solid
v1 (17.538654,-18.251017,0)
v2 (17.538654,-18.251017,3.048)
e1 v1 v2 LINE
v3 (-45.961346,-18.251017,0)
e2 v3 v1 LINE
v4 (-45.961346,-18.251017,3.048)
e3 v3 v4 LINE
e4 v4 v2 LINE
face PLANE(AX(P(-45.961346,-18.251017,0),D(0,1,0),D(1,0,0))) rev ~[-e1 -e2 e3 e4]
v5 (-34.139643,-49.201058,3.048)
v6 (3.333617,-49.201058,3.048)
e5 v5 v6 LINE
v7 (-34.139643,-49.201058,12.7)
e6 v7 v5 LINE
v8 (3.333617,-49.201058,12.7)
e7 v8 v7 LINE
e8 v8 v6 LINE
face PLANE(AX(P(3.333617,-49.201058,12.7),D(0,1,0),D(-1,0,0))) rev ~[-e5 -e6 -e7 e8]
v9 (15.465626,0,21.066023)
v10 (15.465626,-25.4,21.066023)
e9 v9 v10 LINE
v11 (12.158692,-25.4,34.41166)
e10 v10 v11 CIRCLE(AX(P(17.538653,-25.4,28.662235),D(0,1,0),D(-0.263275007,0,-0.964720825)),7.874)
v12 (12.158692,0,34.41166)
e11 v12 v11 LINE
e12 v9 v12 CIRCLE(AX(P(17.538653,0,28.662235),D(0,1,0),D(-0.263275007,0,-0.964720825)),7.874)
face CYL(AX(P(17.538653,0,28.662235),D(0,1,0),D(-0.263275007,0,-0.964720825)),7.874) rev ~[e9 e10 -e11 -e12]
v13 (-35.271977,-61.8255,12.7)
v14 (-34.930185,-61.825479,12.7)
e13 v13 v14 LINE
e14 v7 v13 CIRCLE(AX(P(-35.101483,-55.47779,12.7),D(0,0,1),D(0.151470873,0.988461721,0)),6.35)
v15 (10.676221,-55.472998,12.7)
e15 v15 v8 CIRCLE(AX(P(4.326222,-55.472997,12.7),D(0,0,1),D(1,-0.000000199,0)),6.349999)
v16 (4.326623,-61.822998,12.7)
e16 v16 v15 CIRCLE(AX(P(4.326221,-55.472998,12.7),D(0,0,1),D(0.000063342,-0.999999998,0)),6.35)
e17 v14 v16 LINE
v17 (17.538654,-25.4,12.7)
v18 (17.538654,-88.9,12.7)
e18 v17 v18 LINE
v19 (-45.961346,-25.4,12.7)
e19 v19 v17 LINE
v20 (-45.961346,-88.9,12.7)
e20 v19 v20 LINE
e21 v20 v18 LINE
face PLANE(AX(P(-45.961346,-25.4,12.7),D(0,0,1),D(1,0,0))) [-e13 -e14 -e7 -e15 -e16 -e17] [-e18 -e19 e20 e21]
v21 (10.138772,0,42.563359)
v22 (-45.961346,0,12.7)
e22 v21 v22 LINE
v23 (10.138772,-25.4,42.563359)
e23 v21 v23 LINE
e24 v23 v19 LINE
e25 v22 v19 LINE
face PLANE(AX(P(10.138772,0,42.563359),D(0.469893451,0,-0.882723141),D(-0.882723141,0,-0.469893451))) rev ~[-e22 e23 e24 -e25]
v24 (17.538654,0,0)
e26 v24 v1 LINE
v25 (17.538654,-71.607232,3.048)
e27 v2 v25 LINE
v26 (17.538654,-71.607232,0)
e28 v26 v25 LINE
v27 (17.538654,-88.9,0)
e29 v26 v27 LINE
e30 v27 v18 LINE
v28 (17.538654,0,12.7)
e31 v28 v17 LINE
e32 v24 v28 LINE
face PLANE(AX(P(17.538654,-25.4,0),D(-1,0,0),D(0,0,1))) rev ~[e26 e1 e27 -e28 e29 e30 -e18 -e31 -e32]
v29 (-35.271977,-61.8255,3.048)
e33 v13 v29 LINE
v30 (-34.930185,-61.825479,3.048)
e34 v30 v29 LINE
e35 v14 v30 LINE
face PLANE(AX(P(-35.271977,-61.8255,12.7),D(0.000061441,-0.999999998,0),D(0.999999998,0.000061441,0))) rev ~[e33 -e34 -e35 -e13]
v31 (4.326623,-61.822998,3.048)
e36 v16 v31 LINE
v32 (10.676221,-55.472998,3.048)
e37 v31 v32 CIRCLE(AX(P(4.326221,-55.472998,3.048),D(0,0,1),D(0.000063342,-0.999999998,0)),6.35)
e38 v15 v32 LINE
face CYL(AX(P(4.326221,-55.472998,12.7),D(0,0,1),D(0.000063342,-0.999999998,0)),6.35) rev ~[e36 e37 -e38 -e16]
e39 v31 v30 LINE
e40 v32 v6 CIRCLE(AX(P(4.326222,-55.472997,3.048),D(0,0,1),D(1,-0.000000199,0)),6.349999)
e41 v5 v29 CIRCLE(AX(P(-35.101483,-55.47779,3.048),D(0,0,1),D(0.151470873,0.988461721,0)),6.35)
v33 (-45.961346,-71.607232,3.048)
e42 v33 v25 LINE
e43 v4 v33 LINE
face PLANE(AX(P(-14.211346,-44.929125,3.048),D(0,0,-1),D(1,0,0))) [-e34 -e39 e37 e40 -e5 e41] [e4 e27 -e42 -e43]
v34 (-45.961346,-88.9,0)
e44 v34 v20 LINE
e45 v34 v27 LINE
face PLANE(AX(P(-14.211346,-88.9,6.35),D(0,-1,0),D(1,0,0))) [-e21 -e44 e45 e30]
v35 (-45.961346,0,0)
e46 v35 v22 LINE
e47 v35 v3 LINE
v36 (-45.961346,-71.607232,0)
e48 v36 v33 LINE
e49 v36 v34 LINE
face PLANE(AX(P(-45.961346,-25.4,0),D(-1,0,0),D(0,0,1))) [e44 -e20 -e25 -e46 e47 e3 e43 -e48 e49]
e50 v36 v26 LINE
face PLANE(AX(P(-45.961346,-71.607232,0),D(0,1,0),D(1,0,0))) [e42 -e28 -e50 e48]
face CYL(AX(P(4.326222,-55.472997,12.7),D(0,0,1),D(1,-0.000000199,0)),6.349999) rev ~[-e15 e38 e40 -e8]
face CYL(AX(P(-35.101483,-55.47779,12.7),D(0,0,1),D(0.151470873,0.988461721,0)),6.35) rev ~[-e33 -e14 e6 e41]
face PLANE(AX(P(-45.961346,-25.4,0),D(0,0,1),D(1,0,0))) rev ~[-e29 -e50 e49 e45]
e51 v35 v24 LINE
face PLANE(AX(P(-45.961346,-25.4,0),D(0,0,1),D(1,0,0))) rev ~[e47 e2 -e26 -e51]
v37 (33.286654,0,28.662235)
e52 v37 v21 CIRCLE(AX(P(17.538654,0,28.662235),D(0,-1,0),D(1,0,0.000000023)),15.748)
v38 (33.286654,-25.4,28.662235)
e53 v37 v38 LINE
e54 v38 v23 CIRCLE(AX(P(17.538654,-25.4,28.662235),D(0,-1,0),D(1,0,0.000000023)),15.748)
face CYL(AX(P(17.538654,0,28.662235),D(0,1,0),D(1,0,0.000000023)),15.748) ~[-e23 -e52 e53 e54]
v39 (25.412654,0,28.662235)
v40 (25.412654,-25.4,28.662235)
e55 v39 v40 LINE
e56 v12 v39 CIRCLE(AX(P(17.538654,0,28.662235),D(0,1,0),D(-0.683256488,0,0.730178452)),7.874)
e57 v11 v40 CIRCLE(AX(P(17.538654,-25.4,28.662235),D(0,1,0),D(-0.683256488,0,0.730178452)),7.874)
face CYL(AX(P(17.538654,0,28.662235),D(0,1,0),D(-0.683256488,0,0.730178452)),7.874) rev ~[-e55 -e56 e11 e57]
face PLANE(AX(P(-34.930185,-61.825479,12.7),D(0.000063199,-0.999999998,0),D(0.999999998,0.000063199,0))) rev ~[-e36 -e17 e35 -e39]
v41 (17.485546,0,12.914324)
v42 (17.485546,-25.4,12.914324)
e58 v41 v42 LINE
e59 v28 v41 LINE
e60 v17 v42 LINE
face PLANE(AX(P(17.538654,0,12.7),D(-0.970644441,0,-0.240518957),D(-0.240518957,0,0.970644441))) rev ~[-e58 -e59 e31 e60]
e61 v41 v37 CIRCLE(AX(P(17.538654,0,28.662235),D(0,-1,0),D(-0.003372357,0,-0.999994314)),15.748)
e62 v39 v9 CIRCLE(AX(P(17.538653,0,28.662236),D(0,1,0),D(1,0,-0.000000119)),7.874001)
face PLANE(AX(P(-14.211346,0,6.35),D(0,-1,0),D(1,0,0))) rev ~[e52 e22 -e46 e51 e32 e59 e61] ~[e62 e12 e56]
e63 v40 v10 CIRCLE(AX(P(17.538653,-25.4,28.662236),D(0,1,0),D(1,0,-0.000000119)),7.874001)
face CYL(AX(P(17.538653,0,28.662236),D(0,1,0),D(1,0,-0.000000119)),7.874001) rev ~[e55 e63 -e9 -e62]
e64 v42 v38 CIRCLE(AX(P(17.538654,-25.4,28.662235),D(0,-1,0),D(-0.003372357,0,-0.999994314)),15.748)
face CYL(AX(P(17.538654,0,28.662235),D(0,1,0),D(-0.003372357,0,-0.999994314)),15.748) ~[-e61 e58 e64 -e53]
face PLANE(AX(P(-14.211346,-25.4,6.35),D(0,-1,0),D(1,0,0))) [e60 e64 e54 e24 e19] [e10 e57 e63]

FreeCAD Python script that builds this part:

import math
import FreeCAD as App
import Part
import Sketcher

V = App.Vector
Q = App.Units.Quantity

doc = App.newDocument("Part")
body = doc.addObject("PartDesign::Body", "Body")

# Sketch on XZ plane
sketch1 = doc.addObject("Sketcher::SketchObject", "Sketch")
body.addObject(sketch1)
sketch1.AttachmentSupport = (doc.XZ_Plane, [""])
sketch1.MapMode = "FlatFace"
sketch1.addGeometry(Part.LineSegment(V(-45.96, 12.7, 0), V(-45.96, 0, 0)), False)
sketch1.addGeometry(Part.LineSegment(V(-45.96, 0, 0), V(17.54, 0, 0)), False)
sketch1.addGeometry(Part.LineSegment(V(17.54, 0, 0), V(17.54, 12.7, 0)), False)
sketch1.addGeometry(Part.LineSegment(V(17.54, 12.7, 0), V(17.49, 12.91, 0)), False)
sketch1.addGeometry(Part.ArcOfCircle(Part.Circle(V(17.54, 28.66, 0), V(0, 0, 1), 15.75), math.radians(-90), math.radians(0)), False)
sketch1.addGeometry(Part.ArcOfCircle(Part.Circle(V(17.54, 28.66, 0), V(0, 0, 1), 15.75), math.radians(0), math.radians(118)), False)
sketch1.addGeometry(Part.LineSegment(V(10.14, 42.56, 0), V(-45.96, 12.7, 0)), False)
sketch1.addGeometry(Part.ArcOfCircle(Part.Circle(V(17.54, 28.66, 0), V(0, 0, 1), 7.87), math.radians(133), math.radians(255)), False)
sketch1.addGeometry(Part.ArcOfCircle(Part.Circle(V(17.54, 28.66, 0), V(0, 0, 1), 7.87), math.radians(0), math.radians(133)), False)
sketch1.addGeometry(Part.ArcOfCircle(Part.Circle(V(17.54, 28.66, 0), V(0, 0, 1), 7.87), math.radians(-105), math.radians(0)), False)
sketch1.addConstraint(Sketcher.Constraint("Coincident", 0, 2, 1, 1))
sketch1.addConstraint(Sketcher.Constraint("Coincident", 1, 2, 2, 1))
sketch1.addConstraint(Sketcher.Constraint("Coincident", 2, 2, 3, 1))
sketch1.addConstraint(Sketcher.Constraint("Coincident", 3, 2, 4, 1))
sketch1.addConstraint(Sketcher.Constraint("Tangent", 4, 2, 5, 1))
sketch1.addConstraint(Sketcher.Constraint("Tangent", 5, 2, 6, 1))
sketch1.addConstraint(Sketcher.Constraint("Coincident", 6, 2, 0, 1))
sketch1.addConstraint(Sketcher.Constraint("Tangent", 7, 1, 8, 2))
sketch1.addConstraint(Sketcher.Constraint("Tangent", 8, 1, 9, 2))
sketch1.addConstraint(Sketcher.Constraint("Tangent", 9, 1, 7, 2))
sketch1.addConstraint(Sketcher.Constraint("Vertical", 0))
sketch1.addConstraint(Sketcher.Constraint("Horizontal", 1))
sketch1.addConstraint(Sketcher.Constraint("Vertical", 2))
sketch1.addConstraint(Sketcher.Constraint("Coincident", 7, 3, 4, 3))
sketch1.addConstraint(Sketcher.Constraint("Equal", 4, 5))
sketch1.addConstraint(Sketcher.Constraint("PointOnObject", 0, 2, -1))
sketch1.addConstraint(Sketcher.Constraint("Horizontal", 9, 3, 4, 2))
sketch1.addConstraint(Sketcher.Constraint("Horizontal", 2, 2, 6, 2))
sketch1.addConstraint(Sketcher.Constraint("Horizontal", 4, 2, 8, 1))
sketch1.addConstraint(Sketcher.Constraint("Vertical", 9, 3, 1, 2))
sketch1.addConstraint(Sketcher.Constraint("Radius", 4, Q("0.62 in")))
sketch1.addConstraint(Sketcher.Constraint("Radius", 7, Q("0.31 in")))
sketch1.addConstraint(Sketcher.Constraint("DistanceX", 1, 1, 1, 2, Q("2.5 in")))
sketch1.addConstraint(Sketcher.Constraint("DistanceY", 0, 2, 0, 1, Q("0.5 in")))
sketch1.addConstraint(Sketcher.Constraint("Distance", 6, Q("63.553469 mm")))
sketch1.addConstraint(Sketcher.Constraint("DistanceY", -1, 1, 7, 1, Q("34.41166 mm")))
sketch1.addConstraint(Sketcher.Constraint("DistanceX", 3, 2, 2, 2, Q("0.053108 mm")))
sketch1.addConstraint(Sketcher.Constraint("DistanceY", 9, 1, 4, 3, Q("7.596212 mm")))
sketch1.addConstraint(Sketcher.Constraint("DistanceX", -1, 1, 4, 3, Q("17.538654 mm")))
pad1 = doc.addObject("PartDesign::Pad", "Pad")
body.addObject(pad1)
pad1.Profile = sketch1
pad1.Length = Q("1 in")

# Sketch on XZ plane
sketch2 = doc.addObject("Sketcher::SketchObject", "Sketch001")
body.addObject(sketch2)
sketch2.AttachmentSupport = (doc.XZ_Plane, [""])
sketch2.MapMode = "FlatFace"
sketch2.AttachmentOffset = App.Placement(V(0, 0, 1 * 25.4), App.Rotation())
sketch2.addGeometry(Part.LineSegment(V(-46, 13, 0), V(-46, 0, 0)), False)
sketch2.addGeometry(Part.LineSegment(V(-46, 0, 0), V(18, 0, 0)), False)
sketch2.addGeometry(Part.LineSegment(V(18, 0, 0), V(18, 13, 0)), False)
sketch2.addGeometry(Part.LineSegment(V(18, 13, 0), V(-46, 13, 0)), False)
sketch2.addConstraint(Sketcher.Constraint("Coincident", 0, 2, 1, 1))
sketch2.addConstraint(Sketcher.Constraint("Coincident", 1, 2, 2, 1))
sketch2.addConstraint(Sketcher.Constraint("Coincident", 2, 2, 3, 1))
sketch2.addConstraint(Sketcher.Constraint("Coincident", 3, 2, 0, 1))
sketch2.addConstraint(Sketcher.Constraint("Vertical", 0))
sketch2.addConstraint(Sketcher.Constraint("Horizontal", 1))
sketch2.addConstraint(Sketcher.Constraint("Vertical", 2))
sketch2.addConstraint(Sketcher.Constraint("Horizontal", 3))
sketch2.addConstraint(Sketcher.Constraint("PointOnObject", 0, 2, -1))
sketch2.addConstraint(Sketcher.Constraint("DistanceX", 1, 1, 1, 2, Q("2.5 in")))
sketch2.addConstraint(Sketcher.Constraint("DistanceY", 0, 2, 0, 1, Q("0.5 in")))
sketch2.addConstraint(Sketcher.Constraint("DistanceX", 0, 2, -1, 1, Q("45.961346 mm")))
pad2 = doc.addObject("PartDesign::Pad", "Pad001")
body.addObject(pad2)
pad2.Profile = sketch2
pad2.Length = Q("2.5 in")

# Sketch on XY plane
sketch3 = doc.addObject("Sketcher::SketchObject", "Sketch002")
body.addObject(sketch3)
sketch3.AttachmentSupport = (doc.XY_Plane, [""])
sketch3.MapMode = "FlatFace"
sketch3.addGeometry(Part.LineSegment(V(-46, -72, 0), V(-46, -18, 0)), False)
sketch3.addGeometry(Part.LineSegment(V(-46, -18, 0), V(18, -18, 0)), False)
sketch3.addGeometry(Part.LineSegment(V(18, -18, 0), V(18, -72, 0)), False)
sketch3.addGeometry(Part.LineSegment(V(18, -72, 0), V(-46, -72, 0)), False)
sketch3.addConstraint(Sketcher.Constraint("Coincident", 0, 2, 1, 1))
sketch3.addConstraint(Sketcher.Constraint("Coincident", 1, 2, 2, 1))
sketch3.addConstraint(Sketcher.Constraint("Coincident", 2, 2, 3, 1))
sketch3.addConstraint(Sketcher.Constraint("Coincident", 3, 2, 0, 1))
sketch3.addConstraint(Sketcher.Constraint("Vertical", 0))
sketch3.addConstraint(Sketcher.Constraint("Horizontal", 1))
sketch3.addConstraint(Sketcher.Constraint("Vertical", 2))
sketch3.addConstraint(Sketcher.Constraint("Horizontal", 3))
sketch3.addConstraint(Sketcher.Constraint("DistanceX", 1, 1, 1, 2, Q("2.5 in")))
sketch3.addConstraint(Sketcher.Constraint("DistanceY", 0, 1, 0, 2, Q("53.356215 mm")))
sketch3.addConstraint(Sketcher.Constraint("DistanceX", 0, 2, -1, 1, Q("45.961346 mm")))
sketch3.addConstraint(Sketcher.Constraint("DistanceY", 0, 2, -1, 1, Q("18.251017 mm")))
pocket1 = doc.addObject("PartDesign::Pocket", "Pocket")
body.addObject(pocket1)
pocket1.Profile = sketch3
pocket1.Length = Q("0.12 in")
pocket1.Reversed = True

# Sketch on XY plane
sketch4 = doc.addObject("Sketcher::SketchObject", "Sketch003")
body.addObject(sketch4)
sketch4.AttachmentSupport = (doc.XY_Plane, [""])
sketch4.MapMode = "FlatFace"
sketch4.AttachmentOffset = App.Placement(V(0, 0, 0.5 * 25.4), App.Rotation())
sketch4.addGeometry(Part.LineSegment(V(-34.93, -61.83, 0), V(4.33, -61.82, 0)), False)
sketch4.addGeometry(Part.ArcOfCircle(Part.Circle(V(4.33, -55.47, 0), V(0, 0, 1), 6.35), math.radians(-90), math.radians(0)), False)
sketch4.addGeometry(Part.ArcOfCircle(Part.Circle(V(4.33, -55.47, 0), V(0, 0, 1), 6.35), math.radians(0), math.radians(99)), False)
sketch4.addGeometry(Part.LineSegment(V(3.33, -49.2, 0), V(-34.14, -49.2, 0)), False)
sketch4.addGeometry(Part.ArcOfCircle(Part.Circle(V(-35.1, -55.48, 0), V(0, 0, 1), 6.35), math.radians(81), math.radians(268)), False)
sketch4.addGeometry(Part.LineSegment(V(-35.27, -61.83, 0), V(-34.93, -61.83, 0)), False)
sketch4.addConstraint(Sketcher.Constraint("Tangent", 0, 2, 1, 1))
sketch4.addConstraint(Sketcher.Constraint("Tangent", 1, 2, 2, 1))
sketch4.addConstraint(Sketcher.Constraint("Coincident", 2, 2, 3, 1))
sketch4.addConstraint(Sketcher.Constraint("Coincident", 3, 2, 4, 1))
sketch4.addConstraint(Sketcher.Constraint("Coincident", 4, 2, 5, 1))
sketch4.addConstraint(Sketcher.Constraint("Coincident", 5, 2, 0, 1))
sketch4.addConstraint(Sketcher.Constraint("Horizontal", 3))
sketch4.addConstraint(Sketcher.Constraint("Equal", 1, 2))
sketch4.addConstraint(Sketcher.Constraint("Equal", 2, 4))
sketch4.addConstraint(Sketcher.Constraint("Parallel", 0, 5))
sketch4.addConstraint(Sketcher.Constraint("Horizontal", 2, 3, 1, 2))
sketch4.addConstraint(Sketcher.Constraint("Radius", 1, Q("0.25 in")))
sketch4.addConstraint(Sketcher.Constraint("DistanceX", 4, 2, 0, 2, Q("1.559 in")))
sketch4.addConstraint(Sketcher.Constraint("DistanceX", 3, 2, 3, 1, Q("37.47326 mm")))
sketch4.addConstraint(Sketcher.Constraint("DistanceY", 4, 2, -1, 1, Q("61.8255 mm")))
sketch4.addConstraint(Sketcher.Constraint("DistanceX", 2, 3, 0, 2, Q("0.000401 mm")))
sketch4.addConstraint(Sketcher.Constraint("DistanceX", 4, 3, 2, 2, Q("38.4351 mm")))
sketch4.addConstraint(Sketcher.Constraint("Distance", 0, Q("39.256808 mm")))
sketch4.addConstraint(Sketcher.Constraint("DistanceX", -1, 1, 1, 3, Q("4.326221 mm")))
pocket2 = doc.addObject("PartDesign::Pocket", "Pocket001")
body.addObject(pocket2)
pocket2.Profile = sketch4
pocket2.Length = Q("1 in")

doc.recompute()
